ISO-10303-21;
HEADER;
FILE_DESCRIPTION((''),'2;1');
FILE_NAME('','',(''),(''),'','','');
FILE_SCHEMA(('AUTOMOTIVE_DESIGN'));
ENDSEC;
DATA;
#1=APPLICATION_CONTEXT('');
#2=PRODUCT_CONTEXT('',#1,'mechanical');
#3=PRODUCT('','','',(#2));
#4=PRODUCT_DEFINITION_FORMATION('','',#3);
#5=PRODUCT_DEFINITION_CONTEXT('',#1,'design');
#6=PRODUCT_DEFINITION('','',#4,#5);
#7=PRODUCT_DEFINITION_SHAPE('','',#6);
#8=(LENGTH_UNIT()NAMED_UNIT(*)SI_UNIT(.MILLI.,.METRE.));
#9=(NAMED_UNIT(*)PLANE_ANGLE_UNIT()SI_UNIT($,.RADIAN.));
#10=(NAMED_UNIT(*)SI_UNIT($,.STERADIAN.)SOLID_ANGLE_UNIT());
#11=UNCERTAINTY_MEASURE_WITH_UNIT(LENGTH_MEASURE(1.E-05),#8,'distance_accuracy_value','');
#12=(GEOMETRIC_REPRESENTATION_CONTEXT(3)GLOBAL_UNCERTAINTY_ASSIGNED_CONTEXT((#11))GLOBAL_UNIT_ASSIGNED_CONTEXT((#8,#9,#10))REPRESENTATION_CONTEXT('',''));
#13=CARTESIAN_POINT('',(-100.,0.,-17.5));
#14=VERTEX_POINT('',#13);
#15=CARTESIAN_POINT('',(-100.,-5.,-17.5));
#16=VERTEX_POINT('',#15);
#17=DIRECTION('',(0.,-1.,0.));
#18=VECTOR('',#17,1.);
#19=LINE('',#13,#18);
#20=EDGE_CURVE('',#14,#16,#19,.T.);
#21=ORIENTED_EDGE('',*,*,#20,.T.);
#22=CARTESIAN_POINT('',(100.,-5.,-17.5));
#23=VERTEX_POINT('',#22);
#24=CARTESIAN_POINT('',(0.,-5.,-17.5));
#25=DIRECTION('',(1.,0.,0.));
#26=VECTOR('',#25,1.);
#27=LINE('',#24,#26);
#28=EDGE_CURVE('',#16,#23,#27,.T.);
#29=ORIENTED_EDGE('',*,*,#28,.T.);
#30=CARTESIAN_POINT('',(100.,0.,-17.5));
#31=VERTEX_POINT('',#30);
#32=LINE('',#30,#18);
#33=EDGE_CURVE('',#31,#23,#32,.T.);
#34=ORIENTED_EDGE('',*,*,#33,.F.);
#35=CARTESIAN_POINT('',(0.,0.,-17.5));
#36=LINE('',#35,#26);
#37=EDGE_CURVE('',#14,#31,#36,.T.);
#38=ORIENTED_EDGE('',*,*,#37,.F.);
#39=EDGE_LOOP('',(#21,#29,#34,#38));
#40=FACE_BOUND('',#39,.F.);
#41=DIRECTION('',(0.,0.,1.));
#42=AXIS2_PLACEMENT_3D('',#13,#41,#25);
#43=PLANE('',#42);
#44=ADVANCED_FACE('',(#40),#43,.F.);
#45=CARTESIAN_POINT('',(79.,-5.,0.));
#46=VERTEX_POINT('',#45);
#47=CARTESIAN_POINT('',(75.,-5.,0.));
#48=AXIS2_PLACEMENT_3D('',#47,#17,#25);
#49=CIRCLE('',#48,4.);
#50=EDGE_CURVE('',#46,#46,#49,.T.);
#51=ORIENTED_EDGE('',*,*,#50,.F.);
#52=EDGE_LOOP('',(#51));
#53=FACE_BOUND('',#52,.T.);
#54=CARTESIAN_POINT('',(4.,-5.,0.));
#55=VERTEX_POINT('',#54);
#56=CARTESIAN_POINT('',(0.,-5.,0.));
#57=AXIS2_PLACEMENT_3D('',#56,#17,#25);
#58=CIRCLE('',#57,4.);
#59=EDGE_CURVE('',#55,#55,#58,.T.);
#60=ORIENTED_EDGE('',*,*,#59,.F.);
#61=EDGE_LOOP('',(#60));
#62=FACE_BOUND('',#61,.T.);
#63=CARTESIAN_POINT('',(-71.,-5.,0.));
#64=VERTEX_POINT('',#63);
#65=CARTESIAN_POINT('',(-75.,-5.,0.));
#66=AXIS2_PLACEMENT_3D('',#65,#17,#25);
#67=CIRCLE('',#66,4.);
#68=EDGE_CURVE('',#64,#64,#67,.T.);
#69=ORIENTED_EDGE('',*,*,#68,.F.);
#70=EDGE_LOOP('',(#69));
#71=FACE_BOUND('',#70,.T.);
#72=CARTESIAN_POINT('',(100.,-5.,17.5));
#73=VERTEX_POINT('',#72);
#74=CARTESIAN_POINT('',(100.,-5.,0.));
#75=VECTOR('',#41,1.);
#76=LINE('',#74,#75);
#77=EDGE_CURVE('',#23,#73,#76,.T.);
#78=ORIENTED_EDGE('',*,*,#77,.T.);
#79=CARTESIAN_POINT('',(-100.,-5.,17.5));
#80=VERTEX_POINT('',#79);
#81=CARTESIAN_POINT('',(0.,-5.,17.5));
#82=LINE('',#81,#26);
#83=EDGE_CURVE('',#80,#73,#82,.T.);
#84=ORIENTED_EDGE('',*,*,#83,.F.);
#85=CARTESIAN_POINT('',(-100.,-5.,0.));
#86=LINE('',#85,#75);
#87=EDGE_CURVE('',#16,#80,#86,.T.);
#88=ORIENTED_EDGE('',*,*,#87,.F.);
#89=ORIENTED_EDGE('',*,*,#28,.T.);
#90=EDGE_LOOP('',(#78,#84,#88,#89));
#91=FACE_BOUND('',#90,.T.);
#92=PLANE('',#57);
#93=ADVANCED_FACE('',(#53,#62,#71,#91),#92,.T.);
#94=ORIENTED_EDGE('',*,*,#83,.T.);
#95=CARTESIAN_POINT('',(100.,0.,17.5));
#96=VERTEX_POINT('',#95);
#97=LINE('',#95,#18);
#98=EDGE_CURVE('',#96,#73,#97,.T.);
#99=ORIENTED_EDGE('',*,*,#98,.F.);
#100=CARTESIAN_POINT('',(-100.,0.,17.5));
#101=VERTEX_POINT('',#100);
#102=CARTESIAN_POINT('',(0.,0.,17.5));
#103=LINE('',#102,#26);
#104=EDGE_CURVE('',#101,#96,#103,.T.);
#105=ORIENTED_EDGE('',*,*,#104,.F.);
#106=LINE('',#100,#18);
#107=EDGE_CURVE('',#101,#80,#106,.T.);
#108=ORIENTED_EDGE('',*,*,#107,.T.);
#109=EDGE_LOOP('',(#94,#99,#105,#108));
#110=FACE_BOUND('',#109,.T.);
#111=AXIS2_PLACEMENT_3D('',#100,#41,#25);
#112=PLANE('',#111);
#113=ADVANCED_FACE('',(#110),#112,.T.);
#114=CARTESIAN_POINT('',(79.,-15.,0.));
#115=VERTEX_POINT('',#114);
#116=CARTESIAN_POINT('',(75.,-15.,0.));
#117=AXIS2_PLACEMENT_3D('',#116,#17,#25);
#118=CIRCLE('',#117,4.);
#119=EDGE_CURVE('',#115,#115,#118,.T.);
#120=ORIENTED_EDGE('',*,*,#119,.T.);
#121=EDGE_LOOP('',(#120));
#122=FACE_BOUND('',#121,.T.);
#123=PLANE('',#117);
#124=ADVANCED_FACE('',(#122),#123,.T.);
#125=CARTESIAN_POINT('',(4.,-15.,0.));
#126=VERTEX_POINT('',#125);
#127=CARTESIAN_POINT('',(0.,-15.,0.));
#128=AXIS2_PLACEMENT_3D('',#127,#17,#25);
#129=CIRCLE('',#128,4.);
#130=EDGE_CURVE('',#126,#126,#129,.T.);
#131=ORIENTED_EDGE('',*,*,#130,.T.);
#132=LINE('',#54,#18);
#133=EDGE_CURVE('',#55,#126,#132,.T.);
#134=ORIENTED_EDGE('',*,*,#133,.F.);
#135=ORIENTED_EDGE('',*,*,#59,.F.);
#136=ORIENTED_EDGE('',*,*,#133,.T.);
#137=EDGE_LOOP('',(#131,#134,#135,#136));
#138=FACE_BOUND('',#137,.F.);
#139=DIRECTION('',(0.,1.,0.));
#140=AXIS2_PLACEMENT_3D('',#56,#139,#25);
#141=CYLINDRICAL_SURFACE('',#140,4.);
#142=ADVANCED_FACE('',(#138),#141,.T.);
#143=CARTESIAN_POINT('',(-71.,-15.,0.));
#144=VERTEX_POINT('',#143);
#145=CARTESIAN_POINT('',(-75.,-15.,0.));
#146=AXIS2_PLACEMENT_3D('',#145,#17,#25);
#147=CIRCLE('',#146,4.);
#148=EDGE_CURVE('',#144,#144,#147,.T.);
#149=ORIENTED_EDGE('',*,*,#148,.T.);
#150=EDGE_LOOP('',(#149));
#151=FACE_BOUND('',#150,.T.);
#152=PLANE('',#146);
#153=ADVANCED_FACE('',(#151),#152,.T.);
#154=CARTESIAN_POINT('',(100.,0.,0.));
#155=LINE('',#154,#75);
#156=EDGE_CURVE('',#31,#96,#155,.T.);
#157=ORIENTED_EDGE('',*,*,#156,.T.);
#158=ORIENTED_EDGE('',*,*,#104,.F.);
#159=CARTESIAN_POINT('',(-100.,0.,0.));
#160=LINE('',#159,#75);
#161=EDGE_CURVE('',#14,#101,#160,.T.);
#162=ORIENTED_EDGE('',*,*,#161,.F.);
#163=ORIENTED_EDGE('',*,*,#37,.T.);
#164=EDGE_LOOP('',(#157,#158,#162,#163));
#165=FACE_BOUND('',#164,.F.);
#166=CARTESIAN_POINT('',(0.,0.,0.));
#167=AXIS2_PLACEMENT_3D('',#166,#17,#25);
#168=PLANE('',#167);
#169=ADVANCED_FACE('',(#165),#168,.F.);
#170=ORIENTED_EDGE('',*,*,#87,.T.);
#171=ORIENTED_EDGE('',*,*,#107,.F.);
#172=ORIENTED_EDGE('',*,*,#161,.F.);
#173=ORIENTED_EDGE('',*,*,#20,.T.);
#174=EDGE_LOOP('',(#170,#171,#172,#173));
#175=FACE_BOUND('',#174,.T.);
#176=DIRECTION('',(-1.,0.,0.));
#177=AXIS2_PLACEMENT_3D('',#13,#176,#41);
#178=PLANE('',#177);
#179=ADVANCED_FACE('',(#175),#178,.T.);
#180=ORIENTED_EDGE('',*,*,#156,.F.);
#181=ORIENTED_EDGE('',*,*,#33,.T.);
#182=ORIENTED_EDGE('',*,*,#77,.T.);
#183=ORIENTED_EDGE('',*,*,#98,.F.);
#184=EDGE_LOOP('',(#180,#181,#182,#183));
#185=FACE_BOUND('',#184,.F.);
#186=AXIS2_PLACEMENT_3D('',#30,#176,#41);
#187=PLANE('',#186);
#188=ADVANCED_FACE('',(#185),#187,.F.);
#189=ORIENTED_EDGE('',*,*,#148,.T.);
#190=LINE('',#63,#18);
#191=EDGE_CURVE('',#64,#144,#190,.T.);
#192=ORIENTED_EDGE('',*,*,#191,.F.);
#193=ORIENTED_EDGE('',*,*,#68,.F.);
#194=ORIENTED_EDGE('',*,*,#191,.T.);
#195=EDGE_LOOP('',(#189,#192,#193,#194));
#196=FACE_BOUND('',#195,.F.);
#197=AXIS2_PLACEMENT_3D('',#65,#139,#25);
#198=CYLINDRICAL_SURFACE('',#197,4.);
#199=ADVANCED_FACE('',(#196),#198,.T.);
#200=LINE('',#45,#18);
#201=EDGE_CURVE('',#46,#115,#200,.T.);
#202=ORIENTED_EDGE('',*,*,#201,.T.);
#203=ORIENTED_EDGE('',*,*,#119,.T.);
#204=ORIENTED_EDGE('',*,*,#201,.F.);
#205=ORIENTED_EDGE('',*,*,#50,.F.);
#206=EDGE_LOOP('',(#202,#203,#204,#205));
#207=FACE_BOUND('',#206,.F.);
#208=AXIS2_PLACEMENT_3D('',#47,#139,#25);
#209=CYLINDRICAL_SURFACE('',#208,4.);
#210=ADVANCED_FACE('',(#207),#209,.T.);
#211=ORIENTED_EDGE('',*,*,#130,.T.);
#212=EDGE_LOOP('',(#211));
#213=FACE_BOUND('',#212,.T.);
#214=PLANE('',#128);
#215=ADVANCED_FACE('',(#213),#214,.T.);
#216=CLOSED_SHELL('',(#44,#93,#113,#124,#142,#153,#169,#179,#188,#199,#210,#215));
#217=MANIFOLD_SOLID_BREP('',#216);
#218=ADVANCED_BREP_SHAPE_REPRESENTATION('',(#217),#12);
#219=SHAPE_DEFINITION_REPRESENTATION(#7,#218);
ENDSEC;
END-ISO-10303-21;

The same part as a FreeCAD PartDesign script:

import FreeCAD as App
import Part
import Sketcher
Q = App.Units.Quantity


def add_polygon(sketch, points):
    """Adds a closed chain of lines whose ends are joined by coincident constraints."""
    first, n = sketch.GeometryCount, len(points)
    for a, b in zip(points, points[1:] + points[:1]):
        sketch.addGeometry(Part.LineSegment(App.Vector(*a, 0), App.Vector(*b, 0)), False)
    for i in range(n):
        sketch.addConstraint(Sketcher.Constraint("Coincident", first + i, 2, first + (i + 1) % n, 1))

doc = App.newDocument("Part")
params = doc.addObject("Spreadsheet::Sheet", "Params")
for row, (alias, value) in enumerate([
    ("sketch1_width", "200 mm"),
    ("sketch1_height", "35 mm"),
    ("pad1_length", "5 mm"),
    ("sketch2_diameter", "8 mm"),
    ("pad2_length", "10 mm"),
], start=1):
    params.set(f"A{row}", alias)
    params.set(f"B{row}", "=" + value)
    params.setAlias(f"B{row}", alias)

body = doc.addObject("PartDesign::Body", "Body")

# Sketch on XZ plane
sketch1 = doc.addObject("Sketcher::SketchObject", "Sketch")
body.addObject(sketch1)
sketch1.AttachmentSupport = (doc.XZ_Plane, [""])
sketch1.MapMode = "FlatFace"
add_polygon(sketch1, [(-100, 18), (-100, -18), (100, -18), (100, 18)])  # lines 0-3
sketch1.addConstraint(Sketcher.Constraint("Vertical", 0))
sketch1.addConstraint(Sketcher.Constraint("Horizontal", 1))
sketch1.addConstraint(Sketcher.Constraint("Vertical", 2))
sketch1.addConstraint(Sketcher.Constraint("Horizontal", 3))
sketch1.addConstraint(Sketcher.Constraint("Symmetric", 0, 2, 2, 2, -1, 1))
sketch1.addConstraint(Sketcher.Constraint("DistanceX", 1, 1, 1, 2, Q("200 mm")))
sketch1.addConstraint(Sketcher.Constraint("DistanceY", 0, 2, 0, 1, Q("35 mm")))
sketch1.setExpression("Constraints[9]", "Params.sketch1_width")
sketch1.setExpression("Constraints[10]", "Params.sketch1_height")
pad1 = doc.addObject("PartDesign::Pad", "Pad")
body.addObject(pad1)
pad1.Profile = sketch1
pad1.setExpression("Length", "Params.pad1_length")

# Sketch on XZ plane
sketch2 = doc.addObject("Sketcher::SketchObject", "Sketch001")
body.addObject(sketch2)
sketch2.AttachmentSupport = (doc.XZ_Plane, [""])
sketch2.MapMode = "FlatFace"
sketch2.AttachmentOffset = App.Placement(App.Vector(0, 0, 5), App.Rotation())
sketch2.addGeometry(Part.Circle(App.Vector(-75, 0, 0), App.Vector(0, 0, 1), 4), False)
sketch2.addGeometry(Part.Circle(App.Vector(0, 0, 0), App.Vector(0, 0, 1), 4), False)
sketch2.addGeometry(Part.Circle(App.Vector(75, 0, 0), App.Vector(0, 0, 1), 4), False)
sketch2.addConstraint(Sketcher.Constraint("Coincident", 1, 3, -1, 1))
sketch2.addConstraint(Sketcher.Constraint("Equal", 0, 1))
sketch2.addConstraint(Sketcher.Constraint("Equal", 1, 2))
sketch2.addConstraint(Sketcher.Constraint("Symmetric", 0, 3, 2, 3, -1, 1))
sketch2.addConstraint(Sketcher.Constraint("PointOnObject", 0, 3, -1))
sketch2.addConstraint(Sketcher.Constraint("Diameter", 0, Q("8 mm")))
sketch2.addConstraint(Sketcher.Constraint("DistanceX", 0, 3, -1, 1, Q("75 mm")))
sketch2.setExpression("Constraints[5]", "Params.sketch2_diameter")
pad2 = doc.addObject("PartDesign::Pad", "Pad001")
body.addObject(pad2)
pad2.Profile = sketch2
pad2.setExpression("Length", "Params.pad2_length")

doc.recompute()
